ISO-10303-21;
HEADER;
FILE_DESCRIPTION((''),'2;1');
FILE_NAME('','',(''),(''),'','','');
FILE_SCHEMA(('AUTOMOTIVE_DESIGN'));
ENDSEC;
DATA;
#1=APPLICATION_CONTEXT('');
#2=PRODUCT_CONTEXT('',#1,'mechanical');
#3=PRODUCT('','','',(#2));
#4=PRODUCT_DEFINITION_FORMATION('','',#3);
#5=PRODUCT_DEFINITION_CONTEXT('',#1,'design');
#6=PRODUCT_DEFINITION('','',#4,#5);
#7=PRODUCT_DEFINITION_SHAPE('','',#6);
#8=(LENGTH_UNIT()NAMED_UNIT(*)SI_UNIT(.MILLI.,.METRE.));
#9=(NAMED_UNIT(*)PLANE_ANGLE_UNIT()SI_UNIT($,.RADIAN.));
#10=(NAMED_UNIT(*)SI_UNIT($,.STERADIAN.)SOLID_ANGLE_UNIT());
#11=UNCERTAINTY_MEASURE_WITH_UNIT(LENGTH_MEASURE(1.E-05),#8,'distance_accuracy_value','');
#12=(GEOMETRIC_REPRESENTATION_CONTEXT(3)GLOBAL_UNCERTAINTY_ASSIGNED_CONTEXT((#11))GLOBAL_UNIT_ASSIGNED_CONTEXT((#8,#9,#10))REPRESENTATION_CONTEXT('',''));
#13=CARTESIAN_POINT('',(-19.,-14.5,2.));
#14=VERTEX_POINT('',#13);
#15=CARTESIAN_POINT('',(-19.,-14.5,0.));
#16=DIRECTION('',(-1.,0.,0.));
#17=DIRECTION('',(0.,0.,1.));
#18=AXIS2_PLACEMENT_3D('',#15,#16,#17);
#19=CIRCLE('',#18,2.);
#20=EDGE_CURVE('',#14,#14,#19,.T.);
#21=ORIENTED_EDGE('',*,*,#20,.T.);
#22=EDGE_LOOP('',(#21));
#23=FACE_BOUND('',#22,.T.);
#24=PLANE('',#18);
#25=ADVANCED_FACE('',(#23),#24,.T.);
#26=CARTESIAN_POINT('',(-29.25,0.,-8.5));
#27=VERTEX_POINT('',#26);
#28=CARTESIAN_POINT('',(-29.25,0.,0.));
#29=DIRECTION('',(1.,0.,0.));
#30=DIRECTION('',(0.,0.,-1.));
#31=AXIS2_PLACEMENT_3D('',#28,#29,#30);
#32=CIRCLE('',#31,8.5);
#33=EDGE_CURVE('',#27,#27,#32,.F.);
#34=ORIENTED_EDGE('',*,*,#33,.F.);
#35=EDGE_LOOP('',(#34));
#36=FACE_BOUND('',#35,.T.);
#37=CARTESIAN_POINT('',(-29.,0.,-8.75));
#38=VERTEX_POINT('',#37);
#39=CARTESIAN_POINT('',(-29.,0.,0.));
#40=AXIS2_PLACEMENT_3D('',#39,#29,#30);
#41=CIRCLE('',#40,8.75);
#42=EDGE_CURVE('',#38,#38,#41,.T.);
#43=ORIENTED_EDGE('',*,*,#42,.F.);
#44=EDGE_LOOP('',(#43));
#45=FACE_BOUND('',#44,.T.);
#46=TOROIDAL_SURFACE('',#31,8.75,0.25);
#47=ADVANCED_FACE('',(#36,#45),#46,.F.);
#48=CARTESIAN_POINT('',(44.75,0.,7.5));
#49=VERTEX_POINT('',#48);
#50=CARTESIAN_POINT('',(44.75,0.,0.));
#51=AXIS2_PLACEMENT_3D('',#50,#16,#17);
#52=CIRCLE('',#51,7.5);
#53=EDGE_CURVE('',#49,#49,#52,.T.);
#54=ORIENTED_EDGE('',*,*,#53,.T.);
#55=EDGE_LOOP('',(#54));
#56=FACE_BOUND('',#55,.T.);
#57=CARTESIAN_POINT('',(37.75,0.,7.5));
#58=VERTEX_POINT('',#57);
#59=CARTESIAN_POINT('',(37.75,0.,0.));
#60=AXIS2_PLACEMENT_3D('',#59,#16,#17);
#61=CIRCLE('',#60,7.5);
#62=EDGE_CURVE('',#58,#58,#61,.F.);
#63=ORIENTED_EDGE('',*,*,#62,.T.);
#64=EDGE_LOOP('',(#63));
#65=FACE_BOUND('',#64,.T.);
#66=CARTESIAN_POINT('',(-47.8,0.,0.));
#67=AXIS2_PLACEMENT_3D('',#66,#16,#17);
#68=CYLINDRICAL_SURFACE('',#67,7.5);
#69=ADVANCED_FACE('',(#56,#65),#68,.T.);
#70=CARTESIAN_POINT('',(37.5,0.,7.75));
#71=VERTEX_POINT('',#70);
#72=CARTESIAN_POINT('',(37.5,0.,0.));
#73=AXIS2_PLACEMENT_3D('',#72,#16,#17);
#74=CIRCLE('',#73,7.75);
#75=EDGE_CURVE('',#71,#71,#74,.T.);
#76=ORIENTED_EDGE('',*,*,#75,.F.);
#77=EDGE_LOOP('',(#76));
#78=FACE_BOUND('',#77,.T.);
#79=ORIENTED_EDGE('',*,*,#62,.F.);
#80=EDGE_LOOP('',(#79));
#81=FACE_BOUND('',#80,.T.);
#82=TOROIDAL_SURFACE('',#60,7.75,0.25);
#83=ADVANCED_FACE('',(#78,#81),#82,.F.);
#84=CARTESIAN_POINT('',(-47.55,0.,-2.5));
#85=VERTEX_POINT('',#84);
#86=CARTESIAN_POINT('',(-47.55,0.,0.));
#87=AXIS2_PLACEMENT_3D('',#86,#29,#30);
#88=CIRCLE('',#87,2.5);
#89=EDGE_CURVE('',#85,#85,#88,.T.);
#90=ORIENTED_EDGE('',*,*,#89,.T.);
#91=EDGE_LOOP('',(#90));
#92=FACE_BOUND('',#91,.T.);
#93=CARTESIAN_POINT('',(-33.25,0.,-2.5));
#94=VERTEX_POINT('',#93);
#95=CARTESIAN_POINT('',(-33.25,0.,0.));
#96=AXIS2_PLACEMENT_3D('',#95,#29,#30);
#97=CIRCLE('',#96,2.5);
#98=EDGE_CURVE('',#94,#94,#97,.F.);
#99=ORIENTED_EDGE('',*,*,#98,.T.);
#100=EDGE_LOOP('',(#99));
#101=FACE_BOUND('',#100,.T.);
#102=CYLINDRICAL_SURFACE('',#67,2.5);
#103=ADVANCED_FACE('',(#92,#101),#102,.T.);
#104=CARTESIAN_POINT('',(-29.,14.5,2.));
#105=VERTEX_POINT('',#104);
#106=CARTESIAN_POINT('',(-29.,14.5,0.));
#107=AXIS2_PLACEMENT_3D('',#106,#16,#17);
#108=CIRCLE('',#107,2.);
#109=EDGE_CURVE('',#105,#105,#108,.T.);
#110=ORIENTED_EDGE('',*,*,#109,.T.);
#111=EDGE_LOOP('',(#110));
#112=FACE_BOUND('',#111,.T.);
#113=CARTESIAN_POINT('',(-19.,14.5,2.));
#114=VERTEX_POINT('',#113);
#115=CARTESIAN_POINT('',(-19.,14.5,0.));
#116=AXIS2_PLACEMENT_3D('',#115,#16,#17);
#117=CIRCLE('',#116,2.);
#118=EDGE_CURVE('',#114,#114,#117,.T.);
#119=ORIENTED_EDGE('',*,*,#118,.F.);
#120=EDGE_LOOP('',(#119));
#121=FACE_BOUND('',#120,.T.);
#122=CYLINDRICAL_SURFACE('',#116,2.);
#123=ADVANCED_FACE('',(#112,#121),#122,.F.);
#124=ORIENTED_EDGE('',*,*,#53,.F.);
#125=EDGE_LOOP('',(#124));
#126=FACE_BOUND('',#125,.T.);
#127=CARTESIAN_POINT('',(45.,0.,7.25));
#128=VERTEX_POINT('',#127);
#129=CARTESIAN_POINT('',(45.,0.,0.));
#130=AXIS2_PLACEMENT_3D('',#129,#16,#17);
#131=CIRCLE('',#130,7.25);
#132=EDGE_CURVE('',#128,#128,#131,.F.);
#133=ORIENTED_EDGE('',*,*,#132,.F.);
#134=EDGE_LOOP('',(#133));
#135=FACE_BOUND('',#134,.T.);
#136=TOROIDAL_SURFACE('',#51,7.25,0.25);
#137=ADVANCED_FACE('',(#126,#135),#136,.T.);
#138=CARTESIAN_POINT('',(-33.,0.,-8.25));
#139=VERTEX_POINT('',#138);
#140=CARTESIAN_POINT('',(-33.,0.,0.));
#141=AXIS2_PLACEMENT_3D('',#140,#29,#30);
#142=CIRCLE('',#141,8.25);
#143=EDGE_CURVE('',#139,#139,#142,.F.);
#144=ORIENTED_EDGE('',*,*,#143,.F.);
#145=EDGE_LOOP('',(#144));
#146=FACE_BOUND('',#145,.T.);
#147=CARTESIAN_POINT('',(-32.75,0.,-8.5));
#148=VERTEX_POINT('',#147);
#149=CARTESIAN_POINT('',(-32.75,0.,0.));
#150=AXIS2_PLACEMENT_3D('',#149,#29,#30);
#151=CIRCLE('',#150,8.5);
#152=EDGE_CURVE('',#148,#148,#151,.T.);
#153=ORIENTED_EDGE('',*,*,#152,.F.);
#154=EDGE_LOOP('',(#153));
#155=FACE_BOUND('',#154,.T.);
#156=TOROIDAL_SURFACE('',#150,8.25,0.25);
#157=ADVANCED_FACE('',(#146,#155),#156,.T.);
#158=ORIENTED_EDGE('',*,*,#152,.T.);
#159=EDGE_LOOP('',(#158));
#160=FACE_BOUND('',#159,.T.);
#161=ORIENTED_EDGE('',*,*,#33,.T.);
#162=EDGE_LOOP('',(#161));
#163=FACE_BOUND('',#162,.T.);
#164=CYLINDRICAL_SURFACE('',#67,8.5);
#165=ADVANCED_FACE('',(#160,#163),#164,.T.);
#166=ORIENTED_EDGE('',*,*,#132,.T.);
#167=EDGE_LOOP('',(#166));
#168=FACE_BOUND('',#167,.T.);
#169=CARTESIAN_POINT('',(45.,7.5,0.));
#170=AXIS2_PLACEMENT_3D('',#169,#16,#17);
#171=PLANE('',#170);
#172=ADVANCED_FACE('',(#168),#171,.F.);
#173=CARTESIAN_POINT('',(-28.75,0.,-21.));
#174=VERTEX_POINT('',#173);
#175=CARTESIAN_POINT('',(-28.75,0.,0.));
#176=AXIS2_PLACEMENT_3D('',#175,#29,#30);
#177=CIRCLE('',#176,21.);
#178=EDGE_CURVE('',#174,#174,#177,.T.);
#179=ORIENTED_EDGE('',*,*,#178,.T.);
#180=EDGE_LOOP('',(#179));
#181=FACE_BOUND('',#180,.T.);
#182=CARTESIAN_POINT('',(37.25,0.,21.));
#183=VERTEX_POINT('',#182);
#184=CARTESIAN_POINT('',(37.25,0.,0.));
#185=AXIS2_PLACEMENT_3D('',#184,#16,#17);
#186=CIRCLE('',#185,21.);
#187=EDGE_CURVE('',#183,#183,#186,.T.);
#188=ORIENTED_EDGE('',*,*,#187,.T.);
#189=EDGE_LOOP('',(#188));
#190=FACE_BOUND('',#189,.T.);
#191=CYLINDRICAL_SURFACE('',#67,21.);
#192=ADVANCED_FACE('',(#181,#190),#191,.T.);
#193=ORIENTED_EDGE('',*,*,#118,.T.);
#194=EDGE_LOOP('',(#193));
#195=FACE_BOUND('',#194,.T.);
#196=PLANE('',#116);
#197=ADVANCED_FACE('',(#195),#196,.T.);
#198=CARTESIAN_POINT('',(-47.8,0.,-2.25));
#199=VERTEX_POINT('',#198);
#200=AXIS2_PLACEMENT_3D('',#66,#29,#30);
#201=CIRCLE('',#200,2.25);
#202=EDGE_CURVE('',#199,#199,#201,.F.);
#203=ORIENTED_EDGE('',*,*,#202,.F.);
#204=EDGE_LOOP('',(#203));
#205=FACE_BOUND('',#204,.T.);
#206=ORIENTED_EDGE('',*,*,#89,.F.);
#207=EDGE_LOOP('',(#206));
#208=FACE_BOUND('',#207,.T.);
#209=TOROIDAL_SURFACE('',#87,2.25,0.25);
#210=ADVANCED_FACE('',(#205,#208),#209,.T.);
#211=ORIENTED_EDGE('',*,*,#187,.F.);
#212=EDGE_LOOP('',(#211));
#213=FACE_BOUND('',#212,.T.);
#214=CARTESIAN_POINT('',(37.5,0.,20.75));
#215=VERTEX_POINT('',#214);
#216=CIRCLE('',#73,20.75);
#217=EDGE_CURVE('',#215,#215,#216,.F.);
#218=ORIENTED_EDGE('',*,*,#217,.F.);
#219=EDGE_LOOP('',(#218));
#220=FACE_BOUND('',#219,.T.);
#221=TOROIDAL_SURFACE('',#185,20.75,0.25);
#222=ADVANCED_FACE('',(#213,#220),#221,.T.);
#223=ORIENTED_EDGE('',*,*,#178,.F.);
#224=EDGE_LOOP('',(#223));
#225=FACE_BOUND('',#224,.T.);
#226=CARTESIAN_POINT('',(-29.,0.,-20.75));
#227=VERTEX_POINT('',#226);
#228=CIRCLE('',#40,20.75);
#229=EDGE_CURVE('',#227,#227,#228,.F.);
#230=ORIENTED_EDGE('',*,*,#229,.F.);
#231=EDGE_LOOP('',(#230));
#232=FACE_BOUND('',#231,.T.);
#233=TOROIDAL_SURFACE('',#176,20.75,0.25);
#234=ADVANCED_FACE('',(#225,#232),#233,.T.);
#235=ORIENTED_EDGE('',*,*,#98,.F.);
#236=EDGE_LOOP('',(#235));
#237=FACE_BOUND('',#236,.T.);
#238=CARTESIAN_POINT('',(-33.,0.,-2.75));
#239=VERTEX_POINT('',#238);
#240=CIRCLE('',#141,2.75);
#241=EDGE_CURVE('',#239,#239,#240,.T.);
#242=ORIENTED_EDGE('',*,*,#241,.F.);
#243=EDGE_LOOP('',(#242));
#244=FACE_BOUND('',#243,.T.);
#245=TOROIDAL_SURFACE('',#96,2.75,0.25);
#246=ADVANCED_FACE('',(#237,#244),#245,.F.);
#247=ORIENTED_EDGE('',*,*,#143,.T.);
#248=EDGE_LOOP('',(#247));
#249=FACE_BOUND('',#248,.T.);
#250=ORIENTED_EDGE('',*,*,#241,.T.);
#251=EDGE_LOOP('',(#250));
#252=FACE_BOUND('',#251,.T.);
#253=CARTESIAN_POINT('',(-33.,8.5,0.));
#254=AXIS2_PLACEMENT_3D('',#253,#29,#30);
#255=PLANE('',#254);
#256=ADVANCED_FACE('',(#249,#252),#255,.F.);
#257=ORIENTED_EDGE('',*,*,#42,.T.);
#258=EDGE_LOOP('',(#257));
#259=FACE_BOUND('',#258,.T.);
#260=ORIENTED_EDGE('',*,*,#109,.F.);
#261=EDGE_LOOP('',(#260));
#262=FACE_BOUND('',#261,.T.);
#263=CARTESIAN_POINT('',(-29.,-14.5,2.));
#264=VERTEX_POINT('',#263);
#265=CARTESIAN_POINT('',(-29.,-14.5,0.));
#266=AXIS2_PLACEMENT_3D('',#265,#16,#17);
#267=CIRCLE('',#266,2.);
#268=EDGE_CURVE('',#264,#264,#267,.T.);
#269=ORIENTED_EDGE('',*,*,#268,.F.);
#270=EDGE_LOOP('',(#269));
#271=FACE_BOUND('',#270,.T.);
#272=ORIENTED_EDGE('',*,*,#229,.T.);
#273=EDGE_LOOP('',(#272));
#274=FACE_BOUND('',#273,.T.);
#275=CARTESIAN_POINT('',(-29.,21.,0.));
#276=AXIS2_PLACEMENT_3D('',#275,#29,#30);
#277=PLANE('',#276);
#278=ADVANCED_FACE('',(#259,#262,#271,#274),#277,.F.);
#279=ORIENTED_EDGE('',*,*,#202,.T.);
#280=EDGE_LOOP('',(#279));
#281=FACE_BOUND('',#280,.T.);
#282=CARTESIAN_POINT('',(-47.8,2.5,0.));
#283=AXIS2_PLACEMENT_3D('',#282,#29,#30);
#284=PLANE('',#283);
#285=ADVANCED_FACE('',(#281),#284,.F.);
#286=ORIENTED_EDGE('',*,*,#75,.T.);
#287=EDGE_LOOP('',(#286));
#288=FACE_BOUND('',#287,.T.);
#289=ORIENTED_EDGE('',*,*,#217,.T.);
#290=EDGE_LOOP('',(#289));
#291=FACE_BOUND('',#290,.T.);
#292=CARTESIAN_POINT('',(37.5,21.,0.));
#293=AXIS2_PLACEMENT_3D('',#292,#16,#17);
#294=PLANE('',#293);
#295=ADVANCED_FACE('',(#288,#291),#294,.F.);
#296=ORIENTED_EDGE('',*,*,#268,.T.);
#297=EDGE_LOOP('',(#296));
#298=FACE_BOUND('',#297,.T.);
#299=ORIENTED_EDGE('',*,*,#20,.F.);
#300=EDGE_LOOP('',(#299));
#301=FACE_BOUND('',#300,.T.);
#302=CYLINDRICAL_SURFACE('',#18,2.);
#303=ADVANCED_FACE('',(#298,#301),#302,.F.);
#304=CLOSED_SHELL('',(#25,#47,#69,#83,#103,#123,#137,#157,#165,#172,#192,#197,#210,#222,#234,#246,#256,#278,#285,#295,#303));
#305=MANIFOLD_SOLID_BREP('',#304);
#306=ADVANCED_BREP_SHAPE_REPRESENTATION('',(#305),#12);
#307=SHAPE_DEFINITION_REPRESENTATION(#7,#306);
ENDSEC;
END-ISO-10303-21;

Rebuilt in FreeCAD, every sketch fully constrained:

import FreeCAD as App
import Part
import Sketcher
from FreeCAD import Vector


def edges_at(feature, points):
    """Names of the edges that pass closest to the given points."""
    edges = feature.Shape.Edges
    near = lambda p: min(range(len(edges)), key=lambda i: edges[i].distToShape(Part.Vertex(*p))[0])
    return sorted({f"Edge{near(p) + 1}" for p in points})

doc = App.newDocument("Part")
params = doc.addObject("Spreadsheet::Sheet", "Params")
for row, (alias, value) in enumerate([
    ("sketch1_width", "4 mm"),
    ("sketch1_height", "6 mm"),
    ("sketch1_width2", "92.8 mm"),
    ("sketch1_width3", "7.5 mm"),
    ("sketch1_width4", "66.5 mm"),
    ("revolution_angle", "360 deg"),
    ("fillet_radius", "0.25 mm"),
    ("sketch2_diameter", "4 mm"),
    ("pocket1_length", "10 mm"),
], start=1):
    params.set(f"A{row}", alias)
    params.set(f"B{row}", "=" + value)
    params.setAlias(f"B{row}", alias)

body = doc.addObject("PartDesign::Body", "Body")

sketch1 = doc.addObject("Sketcher::SketchObject", "Sketch")
body.addObject(sketch1)
sketch1.AttachmentSupport = (doc.XY_Plane, [""])
sketch1.MapMode = "FlatFace"
sketch1.addGeometry([
    Part.LineSegment(Vector(-47.8, 2.5, 0), Vector(-47.8, 0, 0)),
    Part.LineSegment(Vector(-47.8, 0, 0), Vector(45, 0, 0)),
    Part.LineSegment(Vector(45, 0, 0), Vector(45, 7.5, 0)),
    Part.LineSegment(Vector(45, 7.5, 0), Vector(37.5, 7.5, 0)),
    Part.LineSegment(Vector(37.5, 7.5, 0), Vector(37.5, 21, 0)),
    Part.LineSegment(Vector(37.5, 21, 0), Vector(-29, 21, 0)),
    Part.LineSegment(Vector(-29, 21, 0), Vector(-29, 8.5, 0)),
    Part.LineSegment(Vector(-29, 8.5, 0), Vector(-33, 8.5, 0)),
    Part.LineSegment(Vector(-33, 8.5, 0), Vector(-33, 2.5, 0)),
    Part.LineSegment(Vector(-33, 2.5, 0), Vector(-47.8, 2.5, 0)),
], False)
sketch1.addConstraint([
    Sketcher.Constraint("Coincident", 0, 2, 1, 1),
    Sketcher.Constraint("Coincident", 1, 2, 2, 1),
    Sketcher.Constraint("Coincident", 2, 2, 3, 1),
    Sketcher.Constraint("Coincident", 3, 2, 4, 1),
    Sketcher.Constraint("Coincident", 4, 2, 5, 1),
    Sketcher.Constraint("Coincident", 5, 2, 6, 1),
    Sketcher.Constraint("Coincident", 6, 2, 7, 1),
    Sketcher.Constraint("Coincident", 7, 2, 8, 1),
    Sketcher.Constraint("Coincident", 8, 2, 9, 1),
    Sketcher.Constraint("Coincident", 9, 2, 0, 1),
    Sketcher.Constraint("Vertical", 0),
    Sketcher.Constraint("Horizontal", 1),
    Sketcher.Constraint("Vertical", 2),
    Sketcher.Constraint("Horizontal", 3),
    Sketcher.Constraint("Vertical", 4),
    Sketcher.Constraint("Horizontal", 5),
    Sketcher.Constraint("Vertical", 6),
    Sketcher.Constraint("Horizontal", 7),
    Sketcher.Constraint("Vertical", 8),
    Sketcher.Constraint("Horizontal", 9),
    Sketcher.Constraint("PointOnObject", 0, 2, -1),
    Sketcher.Constraint("Equal", 3, 2),
    Sketcher.Constraint("DistanceX", 7, 2, 7, 1, 4.0),
    Sketcher.Constraint("DistanceY", 8, 2, 8, 1, 6.0),
    Sketcher.Constraint("DistanceX", 1, 1, 1, 2, 92.8),
    Sketcher.Constraint("DistanceX", 3, 2, 3, 1, 7.5),
    Sketcher.Constraint("DistanceX", 5, 2, 5, 1, 66.5),
    Sketcher.Constraint("DistanceY", 0, 2, 0, 1, 2.5),
    Sketcher.Constraint("DistanceY", 4, 1, 4, 2, 13.5),
    Sketcher.Constraint("DistanceX", -1, 1, 1, 2, 45.0),
])
sketch1.setExpression("Constraints[22]", "Params.sketch1_width")
sketch1.setExpression("Constraints[23]", "Params.sketch1_height")
sketch1.setExpression("Constraints[24]", "Params.sketch1_width2")
sketch1.setExpression("Constraints[25]", "Params.sketch1_width3")
sketch1.setExpression("Constraints[26]", "Params.sketch1_width4")
revolution = doc.addObject("PartDesign::Revolution", "Revolution")
body.addObject(revolution)
revolution.Profile = sketch1
revolution.ReferenceAxis = (sketch1, ["H_Axis"])
revolution.setExpression("Angle", "Params.revolution_angle")
doc.recompute()

fillet = doc.addObject("PartDesign::Fillet", "Fillet")
body.addObject(fillet)
fillet.Base = (revolution, edges_at(revolution, [
    (37.5, -21, 0),
    (-29, -21, 0),
    (-29, -8.5, 0),
    (-33, -8.5, 0),
    (-33, -2.5, 0),
    (-47.8, -2.5, 0),
    (45, -7.5, 0),
    (37.5, -7.5, 0),
]))
fillet.setExpression("Radius", "Params.fillet_radius")

sketch2 = doc.addObject("Sketcher::SketchObject", "Sketch001")
body.addObject(sketch2)
sketch2.AttachmentSupport = (doc.YZ_Plane, [""])
sketch2.MapMode = "FlatFace"
sketch2.AttachmentOffset = App.Placement(Vector(0, 0, -29), App.Rotation())
sketch2.addGeometry([
    Part.Circle(Vector(14.5, 0, 0), Vector(0, 0, 1), 2),
    Part.Circle(Vector(-14.5, 0, 0), Vector(0, 0, 1), 2),
], False)
sketch2.addConstraint([
    Sketcher.Constraint("Equal", 0, 1),
    Sketcher.Constraint("Symmetric", 0, 3, 1, 3, -1, 1),
    Sketcher.Constraint("PointOnObject", 0, 3, -1),
    Sketcher.Constraint("Diameter", 0, 4.0),
    Sketcher.Constraint("DistanceX", 1, 3, 0, 3, 29.0),
])
sketch2.setExpression("Constraints[3]", "Params.sketch2_diameter")
pocket1 = doc.addObject("PartDesign::Pocket", "Pocket")
body.addObject(pocket1)
pocket1.Profile = sketch2
pocket1.setExpression("Length", "Params.pocket1_length")
pocket1.Reversed = True

doc.recompute()
